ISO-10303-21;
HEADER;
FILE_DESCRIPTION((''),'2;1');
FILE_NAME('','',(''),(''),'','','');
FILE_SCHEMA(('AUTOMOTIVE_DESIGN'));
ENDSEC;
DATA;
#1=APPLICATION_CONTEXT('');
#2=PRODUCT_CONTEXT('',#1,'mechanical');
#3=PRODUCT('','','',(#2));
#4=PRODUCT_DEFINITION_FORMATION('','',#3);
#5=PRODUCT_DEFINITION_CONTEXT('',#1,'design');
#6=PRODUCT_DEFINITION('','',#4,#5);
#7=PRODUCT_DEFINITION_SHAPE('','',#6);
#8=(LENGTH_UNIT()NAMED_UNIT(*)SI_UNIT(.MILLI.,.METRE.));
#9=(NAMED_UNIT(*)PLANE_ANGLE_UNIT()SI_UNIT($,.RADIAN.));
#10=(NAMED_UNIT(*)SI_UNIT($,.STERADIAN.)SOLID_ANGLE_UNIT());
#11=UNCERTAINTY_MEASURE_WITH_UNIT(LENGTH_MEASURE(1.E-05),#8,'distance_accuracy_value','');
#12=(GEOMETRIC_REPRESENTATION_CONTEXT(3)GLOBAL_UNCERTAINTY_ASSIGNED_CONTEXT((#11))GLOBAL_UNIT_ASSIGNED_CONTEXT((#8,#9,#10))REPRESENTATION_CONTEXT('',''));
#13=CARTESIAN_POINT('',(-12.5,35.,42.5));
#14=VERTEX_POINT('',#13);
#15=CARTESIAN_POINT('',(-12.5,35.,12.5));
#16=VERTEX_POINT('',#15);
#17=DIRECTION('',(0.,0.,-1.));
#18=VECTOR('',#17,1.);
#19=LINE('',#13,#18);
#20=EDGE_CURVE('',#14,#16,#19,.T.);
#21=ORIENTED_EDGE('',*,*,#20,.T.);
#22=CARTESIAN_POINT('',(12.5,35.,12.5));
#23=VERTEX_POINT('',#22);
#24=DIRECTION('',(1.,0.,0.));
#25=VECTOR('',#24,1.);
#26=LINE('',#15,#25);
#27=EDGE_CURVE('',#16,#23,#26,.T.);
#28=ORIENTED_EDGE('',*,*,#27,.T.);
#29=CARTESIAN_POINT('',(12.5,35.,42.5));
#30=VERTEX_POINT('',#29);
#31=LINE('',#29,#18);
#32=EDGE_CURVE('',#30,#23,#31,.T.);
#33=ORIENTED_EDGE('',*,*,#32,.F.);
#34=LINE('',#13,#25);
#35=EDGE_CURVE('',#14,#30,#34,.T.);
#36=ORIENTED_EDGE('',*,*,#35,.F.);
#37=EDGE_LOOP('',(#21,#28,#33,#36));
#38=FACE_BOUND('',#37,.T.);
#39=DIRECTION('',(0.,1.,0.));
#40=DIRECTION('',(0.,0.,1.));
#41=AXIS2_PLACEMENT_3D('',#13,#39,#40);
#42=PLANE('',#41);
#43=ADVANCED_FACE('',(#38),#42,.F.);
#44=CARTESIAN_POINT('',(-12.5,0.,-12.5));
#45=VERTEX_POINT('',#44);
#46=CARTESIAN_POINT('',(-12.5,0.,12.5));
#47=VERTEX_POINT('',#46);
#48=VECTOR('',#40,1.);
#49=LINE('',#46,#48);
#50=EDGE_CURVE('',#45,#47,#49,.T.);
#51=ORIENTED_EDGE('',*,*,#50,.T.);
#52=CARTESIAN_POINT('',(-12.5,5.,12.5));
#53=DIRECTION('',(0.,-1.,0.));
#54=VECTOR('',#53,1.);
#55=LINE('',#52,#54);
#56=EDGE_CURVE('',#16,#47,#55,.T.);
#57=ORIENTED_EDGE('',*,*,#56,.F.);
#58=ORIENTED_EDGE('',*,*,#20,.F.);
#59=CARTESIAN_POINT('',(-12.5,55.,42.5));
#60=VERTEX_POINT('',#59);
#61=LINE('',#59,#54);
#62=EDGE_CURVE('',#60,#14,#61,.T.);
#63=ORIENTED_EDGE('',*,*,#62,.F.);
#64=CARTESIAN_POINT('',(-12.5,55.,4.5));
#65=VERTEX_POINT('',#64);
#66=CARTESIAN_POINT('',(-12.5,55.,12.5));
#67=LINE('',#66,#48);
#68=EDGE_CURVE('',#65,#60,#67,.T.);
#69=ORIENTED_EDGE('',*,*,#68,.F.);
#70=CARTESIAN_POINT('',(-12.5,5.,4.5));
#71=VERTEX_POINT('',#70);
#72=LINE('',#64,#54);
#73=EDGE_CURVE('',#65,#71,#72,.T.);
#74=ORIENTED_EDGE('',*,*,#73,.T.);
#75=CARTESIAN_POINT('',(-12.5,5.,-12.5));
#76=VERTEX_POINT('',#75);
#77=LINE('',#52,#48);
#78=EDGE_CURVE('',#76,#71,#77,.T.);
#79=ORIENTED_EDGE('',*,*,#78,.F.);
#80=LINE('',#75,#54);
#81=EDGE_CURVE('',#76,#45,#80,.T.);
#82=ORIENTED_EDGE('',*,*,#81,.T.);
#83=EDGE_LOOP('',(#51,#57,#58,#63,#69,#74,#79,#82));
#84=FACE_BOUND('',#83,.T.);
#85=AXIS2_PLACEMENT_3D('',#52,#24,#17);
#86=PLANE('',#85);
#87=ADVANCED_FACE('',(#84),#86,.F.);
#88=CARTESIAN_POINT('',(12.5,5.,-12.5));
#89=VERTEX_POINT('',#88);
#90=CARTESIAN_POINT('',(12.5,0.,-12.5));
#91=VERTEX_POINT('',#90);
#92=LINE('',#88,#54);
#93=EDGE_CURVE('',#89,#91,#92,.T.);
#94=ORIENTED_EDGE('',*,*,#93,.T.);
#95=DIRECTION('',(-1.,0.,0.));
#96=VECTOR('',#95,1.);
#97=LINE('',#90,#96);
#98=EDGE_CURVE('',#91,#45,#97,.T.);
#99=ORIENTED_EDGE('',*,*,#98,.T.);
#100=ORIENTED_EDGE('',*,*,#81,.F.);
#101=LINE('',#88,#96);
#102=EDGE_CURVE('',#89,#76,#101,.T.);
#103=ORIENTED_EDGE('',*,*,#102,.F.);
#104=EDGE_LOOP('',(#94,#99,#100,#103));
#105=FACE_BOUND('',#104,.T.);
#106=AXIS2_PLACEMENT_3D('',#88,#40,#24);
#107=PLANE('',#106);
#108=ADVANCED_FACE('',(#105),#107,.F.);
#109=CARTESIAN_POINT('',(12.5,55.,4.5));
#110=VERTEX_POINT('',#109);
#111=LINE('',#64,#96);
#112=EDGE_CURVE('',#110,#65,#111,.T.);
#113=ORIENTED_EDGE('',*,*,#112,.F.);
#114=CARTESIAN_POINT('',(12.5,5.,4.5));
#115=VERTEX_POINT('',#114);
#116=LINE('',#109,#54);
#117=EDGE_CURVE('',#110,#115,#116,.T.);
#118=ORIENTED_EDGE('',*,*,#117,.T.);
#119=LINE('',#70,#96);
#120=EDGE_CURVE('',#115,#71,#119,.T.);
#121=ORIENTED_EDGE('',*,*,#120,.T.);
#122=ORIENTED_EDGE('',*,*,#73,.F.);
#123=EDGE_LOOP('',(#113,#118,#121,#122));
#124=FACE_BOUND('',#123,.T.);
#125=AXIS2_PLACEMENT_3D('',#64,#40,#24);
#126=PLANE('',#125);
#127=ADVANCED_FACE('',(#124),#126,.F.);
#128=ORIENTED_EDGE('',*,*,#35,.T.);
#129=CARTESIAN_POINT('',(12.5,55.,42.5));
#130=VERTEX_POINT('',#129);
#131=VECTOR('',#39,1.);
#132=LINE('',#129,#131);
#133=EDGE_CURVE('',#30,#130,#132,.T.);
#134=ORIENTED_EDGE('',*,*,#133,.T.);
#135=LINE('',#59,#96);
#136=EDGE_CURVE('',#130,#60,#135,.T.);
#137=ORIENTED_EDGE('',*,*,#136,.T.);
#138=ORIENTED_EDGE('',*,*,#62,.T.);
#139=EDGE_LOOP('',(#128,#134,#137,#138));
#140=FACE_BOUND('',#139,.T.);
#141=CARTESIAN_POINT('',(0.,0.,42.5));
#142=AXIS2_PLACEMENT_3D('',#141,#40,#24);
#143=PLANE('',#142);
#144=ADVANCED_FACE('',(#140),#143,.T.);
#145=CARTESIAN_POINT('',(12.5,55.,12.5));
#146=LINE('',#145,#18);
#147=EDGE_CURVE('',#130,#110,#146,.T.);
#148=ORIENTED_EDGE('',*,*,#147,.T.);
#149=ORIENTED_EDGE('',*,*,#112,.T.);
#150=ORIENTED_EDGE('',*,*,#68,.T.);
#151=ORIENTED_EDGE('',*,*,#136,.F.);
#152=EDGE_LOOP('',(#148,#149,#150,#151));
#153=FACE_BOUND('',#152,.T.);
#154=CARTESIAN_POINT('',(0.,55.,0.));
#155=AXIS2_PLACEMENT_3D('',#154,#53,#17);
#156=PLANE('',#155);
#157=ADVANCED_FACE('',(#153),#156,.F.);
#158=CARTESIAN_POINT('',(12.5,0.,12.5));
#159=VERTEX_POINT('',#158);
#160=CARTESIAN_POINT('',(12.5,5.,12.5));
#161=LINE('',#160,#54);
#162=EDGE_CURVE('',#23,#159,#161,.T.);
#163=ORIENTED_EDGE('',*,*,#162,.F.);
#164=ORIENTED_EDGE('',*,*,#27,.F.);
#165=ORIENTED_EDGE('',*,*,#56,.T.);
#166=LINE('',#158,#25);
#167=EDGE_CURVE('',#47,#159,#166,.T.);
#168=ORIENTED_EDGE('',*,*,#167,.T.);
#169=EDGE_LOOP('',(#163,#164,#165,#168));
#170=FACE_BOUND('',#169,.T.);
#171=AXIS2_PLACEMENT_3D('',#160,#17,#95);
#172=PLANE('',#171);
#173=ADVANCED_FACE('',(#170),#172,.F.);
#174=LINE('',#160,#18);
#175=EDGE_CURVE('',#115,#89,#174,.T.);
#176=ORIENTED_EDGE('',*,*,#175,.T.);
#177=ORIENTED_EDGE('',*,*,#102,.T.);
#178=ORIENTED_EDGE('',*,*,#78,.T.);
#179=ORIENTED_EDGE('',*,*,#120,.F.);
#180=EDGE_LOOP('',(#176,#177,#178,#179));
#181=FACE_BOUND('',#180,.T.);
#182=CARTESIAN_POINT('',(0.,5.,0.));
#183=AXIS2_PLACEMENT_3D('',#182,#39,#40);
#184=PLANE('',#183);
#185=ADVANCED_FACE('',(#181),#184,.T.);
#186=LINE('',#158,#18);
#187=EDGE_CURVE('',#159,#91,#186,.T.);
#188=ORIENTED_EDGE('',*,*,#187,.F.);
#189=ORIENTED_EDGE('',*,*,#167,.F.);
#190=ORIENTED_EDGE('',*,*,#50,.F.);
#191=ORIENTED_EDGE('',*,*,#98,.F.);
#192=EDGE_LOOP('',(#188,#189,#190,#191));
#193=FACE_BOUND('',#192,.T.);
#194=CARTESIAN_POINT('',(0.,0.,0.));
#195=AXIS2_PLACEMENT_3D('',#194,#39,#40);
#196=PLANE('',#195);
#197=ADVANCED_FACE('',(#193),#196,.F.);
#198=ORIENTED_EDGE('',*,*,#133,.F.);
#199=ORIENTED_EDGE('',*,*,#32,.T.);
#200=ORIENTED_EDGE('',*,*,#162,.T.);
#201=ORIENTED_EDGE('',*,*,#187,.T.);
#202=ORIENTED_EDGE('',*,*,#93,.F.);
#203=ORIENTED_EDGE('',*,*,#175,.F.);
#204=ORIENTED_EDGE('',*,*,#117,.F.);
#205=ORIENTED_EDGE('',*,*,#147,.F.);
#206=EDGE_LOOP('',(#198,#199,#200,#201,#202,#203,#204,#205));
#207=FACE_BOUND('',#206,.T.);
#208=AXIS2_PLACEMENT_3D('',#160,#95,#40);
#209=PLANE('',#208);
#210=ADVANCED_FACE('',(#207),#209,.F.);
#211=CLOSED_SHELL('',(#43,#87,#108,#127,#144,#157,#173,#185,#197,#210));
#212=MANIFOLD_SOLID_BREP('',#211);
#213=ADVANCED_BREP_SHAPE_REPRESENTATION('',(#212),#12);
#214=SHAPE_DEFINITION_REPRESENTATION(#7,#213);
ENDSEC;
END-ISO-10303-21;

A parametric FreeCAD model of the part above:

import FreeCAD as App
import Part
import Sketcher
from FreeCAD import Vector

doc = App.newDocument("Part")
body = doc.addObject("PartDesign::Body", "Body")

sketch1 = body.newObject("Sketcher::SketchObject", "Sketch")
sketch1.AttachmentSupport = (doc.getObject("XZ_Plane"), [""])
sketch1.MapMode = "FlatFace"
sketch1.addGeometry(Part.LineSegment(Vector(-12, -12, 0), Vector(-12, 12, 0)), False)
sketch1.addGeometry(Part.LineSegment(Vector(-12, 12, 0), Vector(12, 12, 0)), False)
sketch1.addGeometry(Part.LineSegment(Vector(12, 12, 0), Vector(12, -12, 0)), False)
sketch1.addGeometry(Part.LineSegment(Vector(12, -12, 0), Vector(-12, -12, 0)), False)
sketch1.addConstraint(Sketcher.Constraint("Coincident", 0, 2, 1, 1))
sketch1.addConstraint(Sketcher.Constraint("Coincident", 1, 2, 2, 1))
sketch1.addConstraint(Sketcher.Constraint("Coincident", 2, 2, 3, 1))
sketch1.addConstraint(Sketcher.Constraint("Coincident", 3, 2, 0, 1))
sketch1.addConstraint(Sketcher.Constraint("Vertical", 0))
sketch1.addConstraint(Sketcher.Constraint("Horizontal", 1))
sketch1.addConstraint(Sketcher.Constraint("Vertical", 2))
sketch1.addConstraint(Sketcher.Constraint("Horizontal", 3))
sketch1.addConstraint(Sketcher.Constraint("Symmetric", 0, 2, 2, 2, -1, 1))
sketch1.addConstraint(Sketcher.Constraint("Equal", 3, 0))
sketch1.addConstraint(Sketcher.Constraint("DistanceX", 1, 1, 1, 2, 25.0))
pad1 = body.newObject("PartDesign::Pad", "Pad")
pad1.Profile = sketch1
pad1.Length = 5
pad1.Reversed = True

sketch2 = body.newObject("Sketcher::SketchObject", "Sketch001")
sketch2.AttachmentSupport = (doc.getObject("XZ_Plane"), [""])
sketch2.MapMode = "FlatFace"
sketch2.AttachmentOffset = App.Placement(Vector(0, 0, -5), App.Rotation())
sketch2.addGeometry(Part.LineSegment(Vector(-12, 4, 0), Vector(-12, 12, 0)), False)
sketch2.addGeometry(Part.LineSegment(Vector(-12, 12, 0), Vector(12, 12, 0)), False)
sketch2.addGeometry(Part.LineSegment(Vector(12, 12, 0), Vector(12, 4, 0)), False)
sketch2.addGeometry(Part.LineSegment(Vector(12, 4, 0), Vector(-12, 4, 0)), False)
sketch2.addConstraint(Sketcher.Constraint("Coincident", 0, 2, 1, 1))
sketch2.addConstraint(Sketcher.Constraint("Coincident", 1, 2, 2, 1))
sketch2.addConstraint(Sketcher.Constraint("Coincident", 2, 2, 3, 1))
sketch2.addConstraint(Sketcher.Constraint("Coincident", 3, 2, 0, 1))
sketch2.addConstraint(Sketcher.Constraint("Vertical", 0))
sketch2.addConstraint(Sketcher.Constraint("Horizontal", 1))
sketch2.addConstraint(Sketcher.Constraint("Vertical", 2))
sketch2.addConstraint(Sketcher.Constraint("Horizontal", 3))
sketch2.addConstraint(Sketcher.Constraint("DistanceX", 1, 1, 1, 2, 25.0))
sketch2.addConstraint(Sketcher.Constraint("DistanceY", 0, 1, 0, 2, 8.0))
sketch2.addConstraint(Sketcher.Constraint("DistanceX", 0, 2, -1, 1, 12.5))
sketch2.addConstraint(Sketcher.Constraint("DistanceY", -1, 1, 0, 2, 12.5))
pad2 = body.newObject("PartDesign::Pad", "Pad001")
pad2.Profile = sketch2
pad2.Length = 50
pad2.Reversed = True

sketch3 = body.newObject("Sketcher::SketchObject", "Sketch002")
sketch3.AttachmentSupport = (doc.getObject("XY_Plane"), [""])
sketch3.MapMode = "FlatFace"
sketch3.AttachmentOffset = App.Placement(Vector(0, 0, 12.5), App.Rotation())
sketch3.addGeometry(Part.LineSegment(Vector(-12, 55, 0), Vector(-12, 35, 0)), False)
sketch3.addGeometry(Part.LineSegment(Vector(-12, 35, 0), Vector(12, 35, 0)), False)
sketch3.addGeometry(Part.LineSegment(Vector(12, 35, 0), Vector(12, 55, 0)), False)
sketch3.addGeometry(Part.LineSegment(Vector(12, 55, 0), Vector(-12, 55, 0)), False)
sketch3.addConstraint(Sketcher.Constraint("Coincident", 0, 2, 1, 1))
sketch3.addConstraint(Sketcher.Constraint("Coincident", 1, 2, 2, 1))
sketch3.addConstraint(Sketcher.Constraint("Coincident", 2, 2, 3, 1))
sketch3.addConstraint(Sketcher.Constraint("Coincident", 3, 2, 0, 1))
sketch3.addConstraint(Sketcher.Constraint("Vertical", 0))
sketch3.addConstraint(Sketcher.Constraint("Horizontal", 1))
sketch3.addConstraint(Sketcher.Constraint("Vertical", 2))
sketch3.addConstraint(Sketcher.Constraint("Horizontal", 3))
sketch3.addConstraint(Sketcher.Constraint("DistanceX", 1, 1, 1, 2, 25.0))
sketch3.addConstraint(Sketcher.Constraint("DistanceY", 0, 2, 0, 1, 20.0))
sketch3.addConstraint(Sketcher.Constraint("DistanceY", -1, 1, 0, 2, 35.0))
sketch3.addConstraint(Sketcher.Constraint("DistanceX", 0, 2, -1, 1, 12.5))
pad3 = body.newObject("PartDesign::Pad", "Pad002")
pad3.Profile = sketch3
pad3.Length = 30

doc.recompute()
